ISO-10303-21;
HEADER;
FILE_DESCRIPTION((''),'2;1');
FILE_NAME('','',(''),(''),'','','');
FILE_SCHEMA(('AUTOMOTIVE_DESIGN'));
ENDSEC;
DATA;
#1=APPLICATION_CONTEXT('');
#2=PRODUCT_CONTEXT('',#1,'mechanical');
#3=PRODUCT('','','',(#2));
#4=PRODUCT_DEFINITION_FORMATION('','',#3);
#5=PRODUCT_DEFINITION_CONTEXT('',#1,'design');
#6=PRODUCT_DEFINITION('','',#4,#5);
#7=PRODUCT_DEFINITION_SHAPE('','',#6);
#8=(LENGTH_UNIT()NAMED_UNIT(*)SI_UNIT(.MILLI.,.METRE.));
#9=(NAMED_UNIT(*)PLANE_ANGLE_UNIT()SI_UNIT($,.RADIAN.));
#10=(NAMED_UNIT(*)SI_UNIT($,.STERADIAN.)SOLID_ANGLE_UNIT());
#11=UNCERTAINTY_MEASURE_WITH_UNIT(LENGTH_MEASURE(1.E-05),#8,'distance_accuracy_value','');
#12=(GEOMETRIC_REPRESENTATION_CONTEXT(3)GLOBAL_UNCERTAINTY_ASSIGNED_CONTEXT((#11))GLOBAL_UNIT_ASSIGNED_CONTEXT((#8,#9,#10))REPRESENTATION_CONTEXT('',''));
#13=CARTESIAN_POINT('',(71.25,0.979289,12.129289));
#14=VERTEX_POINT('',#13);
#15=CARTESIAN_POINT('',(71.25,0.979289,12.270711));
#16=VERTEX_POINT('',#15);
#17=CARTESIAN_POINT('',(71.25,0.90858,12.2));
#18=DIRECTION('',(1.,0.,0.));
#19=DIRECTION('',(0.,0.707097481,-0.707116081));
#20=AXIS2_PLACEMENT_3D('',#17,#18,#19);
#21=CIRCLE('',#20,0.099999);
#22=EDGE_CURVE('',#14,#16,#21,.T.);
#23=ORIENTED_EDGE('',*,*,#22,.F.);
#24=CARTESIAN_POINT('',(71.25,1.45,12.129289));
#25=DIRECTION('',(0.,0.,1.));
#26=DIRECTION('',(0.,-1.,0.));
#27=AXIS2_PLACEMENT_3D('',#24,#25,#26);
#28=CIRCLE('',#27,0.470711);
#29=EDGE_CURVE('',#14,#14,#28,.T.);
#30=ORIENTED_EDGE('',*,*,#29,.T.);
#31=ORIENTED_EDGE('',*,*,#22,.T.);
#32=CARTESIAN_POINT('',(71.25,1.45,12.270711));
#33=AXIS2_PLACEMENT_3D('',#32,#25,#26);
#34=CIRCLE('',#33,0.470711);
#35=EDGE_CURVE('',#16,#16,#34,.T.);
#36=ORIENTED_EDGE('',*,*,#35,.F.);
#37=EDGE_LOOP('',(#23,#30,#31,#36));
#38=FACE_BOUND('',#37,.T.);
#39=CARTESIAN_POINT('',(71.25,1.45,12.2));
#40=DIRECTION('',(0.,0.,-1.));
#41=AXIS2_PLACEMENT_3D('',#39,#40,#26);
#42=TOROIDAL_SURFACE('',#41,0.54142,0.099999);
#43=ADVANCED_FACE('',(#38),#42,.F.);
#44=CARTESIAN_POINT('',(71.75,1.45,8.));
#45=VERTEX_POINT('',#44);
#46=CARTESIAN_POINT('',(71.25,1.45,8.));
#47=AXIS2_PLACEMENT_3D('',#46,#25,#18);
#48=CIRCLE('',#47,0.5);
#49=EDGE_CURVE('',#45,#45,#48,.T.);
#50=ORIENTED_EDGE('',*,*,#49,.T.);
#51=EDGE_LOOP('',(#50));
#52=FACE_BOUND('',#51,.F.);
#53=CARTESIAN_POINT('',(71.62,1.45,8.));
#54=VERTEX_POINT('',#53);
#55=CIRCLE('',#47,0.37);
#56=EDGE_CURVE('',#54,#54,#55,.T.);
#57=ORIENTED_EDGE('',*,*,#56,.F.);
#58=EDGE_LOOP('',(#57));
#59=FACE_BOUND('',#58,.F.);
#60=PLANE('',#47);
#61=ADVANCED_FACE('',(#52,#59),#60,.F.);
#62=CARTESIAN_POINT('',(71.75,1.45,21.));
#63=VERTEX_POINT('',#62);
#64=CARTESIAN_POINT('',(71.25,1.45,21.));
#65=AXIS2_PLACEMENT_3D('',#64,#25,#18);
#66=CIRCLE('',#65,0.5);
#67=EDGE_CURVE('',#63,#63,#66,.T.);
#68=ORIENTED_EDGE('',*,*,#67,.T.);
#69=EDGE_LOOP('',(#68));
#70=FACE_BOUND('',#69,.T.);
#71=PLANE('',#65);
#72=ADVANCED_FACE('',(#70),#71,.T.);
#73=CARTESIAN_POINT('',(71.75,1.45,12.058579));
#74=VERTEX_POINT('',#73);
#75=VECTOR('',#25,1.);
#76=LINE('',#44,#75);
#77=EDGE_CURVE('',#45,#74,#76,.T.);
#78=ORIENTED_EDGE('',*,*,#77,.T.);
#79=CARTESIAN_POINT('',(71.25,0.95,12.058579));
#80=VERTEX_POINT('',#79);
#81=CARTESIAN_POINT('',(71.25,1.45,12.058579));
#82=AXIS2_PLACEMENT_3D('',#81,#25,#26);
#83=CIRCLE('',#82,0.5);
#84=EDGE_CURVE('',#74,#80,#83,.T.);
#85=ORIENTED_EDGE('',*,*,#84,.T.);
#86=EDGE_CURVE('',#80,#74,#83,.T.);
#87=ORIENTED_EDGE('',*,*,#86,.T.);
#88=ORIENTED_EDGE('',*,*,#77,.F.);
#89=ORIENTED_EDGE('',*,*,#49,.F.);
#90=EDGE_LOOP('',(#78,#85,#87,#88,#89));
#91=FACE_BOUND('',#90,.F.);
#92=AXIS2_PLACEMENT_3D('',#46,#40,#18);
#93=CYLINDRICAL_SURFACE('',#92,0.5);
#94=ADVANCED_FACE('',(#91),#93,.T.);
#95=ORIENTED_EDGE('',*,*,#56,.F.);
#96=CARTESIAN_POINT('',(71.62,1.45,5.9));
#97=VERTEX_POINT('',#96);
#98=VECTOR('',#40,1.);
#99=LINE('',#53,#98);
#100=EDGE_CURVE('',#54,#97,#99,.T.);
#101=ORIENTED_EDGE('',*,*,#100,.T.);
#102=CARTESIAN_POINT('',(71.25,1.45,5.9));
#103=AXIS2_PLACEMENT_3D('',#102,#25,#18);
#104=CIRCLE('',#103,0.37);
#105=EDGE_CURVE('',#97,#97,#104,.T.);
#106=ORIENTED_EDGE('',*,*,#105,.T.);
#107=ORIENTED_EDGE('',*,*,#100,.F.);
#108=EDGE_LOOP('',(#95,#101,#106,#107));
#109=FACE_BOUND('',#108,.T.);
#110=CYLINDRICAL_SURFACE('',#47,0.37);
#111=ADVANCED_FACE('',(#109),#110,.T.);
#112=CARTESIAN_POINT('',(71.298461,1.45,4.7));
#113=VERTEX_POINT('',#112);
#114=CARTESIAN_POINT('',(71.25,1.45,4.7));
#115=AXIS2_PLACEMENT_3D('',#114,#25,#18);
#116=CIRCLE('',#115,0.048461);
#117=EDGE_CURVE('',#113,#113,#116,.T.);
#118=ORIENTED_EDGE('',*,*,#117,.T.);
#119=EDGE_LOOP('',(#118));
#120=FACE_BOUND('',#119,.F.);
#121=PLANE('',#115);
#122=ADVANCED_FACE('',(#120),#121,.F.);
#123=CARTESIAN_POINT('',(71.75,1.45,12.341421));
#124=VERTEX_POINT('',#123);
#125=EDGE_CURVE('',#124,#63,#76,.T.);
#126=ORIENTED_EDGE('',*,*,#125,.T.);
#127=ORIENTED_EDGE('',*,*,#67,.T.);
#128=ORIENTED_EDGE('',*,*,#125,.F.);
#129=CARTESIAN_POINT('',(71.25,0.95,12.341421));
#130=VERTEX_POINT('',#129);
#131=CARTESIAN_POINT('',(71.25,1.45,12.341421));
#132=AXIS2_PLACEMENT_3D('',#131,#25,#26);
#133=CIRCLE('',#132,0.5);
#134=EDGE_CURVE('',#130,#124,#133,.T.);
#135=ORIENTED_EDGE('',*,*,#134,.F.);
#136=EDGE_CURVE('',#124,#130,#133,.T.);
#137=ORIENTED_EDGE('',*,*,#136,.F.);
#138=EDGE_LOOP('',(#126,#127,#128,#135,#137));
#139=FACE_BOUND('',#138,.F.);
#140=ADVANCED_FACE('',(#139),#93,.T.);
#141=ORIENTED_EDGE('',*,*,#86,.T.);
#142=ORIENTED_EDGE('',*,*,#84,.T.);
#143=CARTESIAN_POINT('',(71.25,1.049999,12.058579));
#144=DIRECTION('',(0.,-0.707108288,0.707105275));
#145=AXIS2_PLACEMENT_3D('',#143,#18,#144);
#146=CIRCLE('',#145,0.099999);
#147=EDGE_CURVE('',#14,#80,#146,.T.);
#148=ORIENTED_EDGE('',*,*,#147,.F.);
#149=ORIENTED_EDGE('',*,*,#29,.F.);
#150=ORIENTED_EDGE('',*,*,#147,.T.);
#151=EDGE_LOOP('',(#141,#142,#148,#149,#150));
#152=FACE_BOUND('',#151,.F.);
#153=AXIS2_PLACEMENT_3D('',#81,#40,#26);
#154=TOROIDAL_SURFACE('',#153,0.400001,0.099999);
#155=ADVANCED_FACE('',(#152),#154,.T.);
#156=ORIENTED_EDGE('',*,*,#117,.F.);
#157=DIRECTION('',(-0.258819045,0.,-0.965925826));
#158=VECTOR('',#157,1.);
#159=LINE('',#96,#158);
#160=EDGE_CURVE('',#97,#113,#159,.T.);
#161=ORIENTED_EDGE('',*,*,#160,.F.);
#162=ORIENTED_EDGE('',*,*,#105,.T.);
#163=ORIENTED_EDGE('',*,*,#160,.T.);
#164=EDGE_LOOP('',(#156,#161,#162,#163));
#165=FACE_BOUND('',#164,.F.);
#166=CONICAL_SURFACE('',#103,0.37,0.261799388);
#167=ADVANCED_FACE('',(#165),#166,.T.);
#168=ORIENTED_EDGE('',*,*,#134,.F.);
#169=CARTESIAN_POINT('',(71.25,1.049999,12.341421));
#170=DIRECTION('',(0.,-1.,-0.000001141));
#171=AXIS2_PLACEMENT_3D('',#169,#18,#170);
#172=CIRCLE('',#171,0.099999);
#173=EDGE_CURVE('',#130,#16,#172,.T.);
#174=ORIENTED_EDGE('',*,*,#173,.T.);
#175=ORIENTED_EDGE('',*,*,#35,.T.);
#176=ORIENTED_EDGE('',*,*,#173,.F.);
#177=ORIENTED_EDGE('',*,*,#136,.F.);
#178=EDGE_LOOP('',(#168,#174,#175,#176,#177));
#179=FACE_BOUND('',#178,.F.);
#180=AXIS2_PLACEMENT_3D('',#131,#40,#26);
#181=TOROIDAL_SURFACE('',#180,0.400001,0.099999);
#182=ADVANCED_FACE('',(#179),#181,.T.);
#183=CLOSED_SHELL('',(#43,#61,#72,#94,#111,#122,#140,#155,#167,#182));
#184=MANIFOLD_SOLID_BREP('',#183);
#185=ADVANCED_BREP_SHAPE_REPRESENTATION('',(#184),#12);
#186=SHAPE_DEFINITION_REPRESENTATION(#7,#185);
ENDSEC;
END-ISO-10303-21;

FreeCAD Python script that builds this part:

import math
import FreeCAD as App
import Part
import Sketcher
from FreeCAD import Vector
Q = App.Units.Quantity


def edges_at(feature, points):
    """Names of the edges that pass closest to the given points."""
    edges = feature.Shape.Edges
    near = lambda p: min(range(len(edges)), key=lambda i: edges[i].distToShape(Part.Vertex(*p))[0])
    return sorted({f"Edge{near(p) + 1}" for p in points})

doc = App.newDocument("Part")
body = doc.addObject("PartDesign::Body", "Body")

# Sketch on XY plane
sketch1 = body.newObject("Sketcher::SketchObject", "Sketch")
sketch1.AttachmentSupport = (doc.getObject("XY_Plane"), [""])
sketch1.MapMode = "FlatFace"
sketch1.addGeometry(Part.Circle(Vector(0, 0, 0), Vector(0, 0, 1), 0.5), False)
sketch1.addConstraint([
    Sketcher.Constraint("Coincident", 0, 3, -1, 1),
    Sketcher.Constraint("Diameter", 0, Q("1 mm")),
])
pad1 = body.newObject("PartDesign::Pad", "Pad")
pad1.Profile = sketch1
pad1.Length = 13

# Sketch on YZ plane
sketch2 = body.newObject("Sketcher::SketchObject", "Sketch001")
sketch2.AttachmentSupport = (doc.getObject("YZ_Plane"), [""])
sketch2.MapMode = "FlatFace"
sketch2.addGeometry([
    Part.ArcOfCircle(Part.Circle(Vector(-0.4, 4.34, 0), Vector(0, 0, 1), 0.1), math.radians(-180), math.radians(-135)),
    Part.LineSegment(Vector(-0.5, 4.34, 0), Vector(-0.5, 4.06, 0)),
    Part.ArcOfCircle(Part.Circle(Vector(-0.4, 4.06, 0), Vector(0, 0, 1), 0.1), math.radians(135), math.radians(180)),
    Part.ArcOfCircle(Part.Circle(Vector(-0.54, 4.2, 0), Vector(0, 0, 1), 0.1), math.radians(-45), math.radians(45)),
], False)
sketch2.addConstraint([
    Sketcher.Constraint("Tangent", 0, 1, 1, 1),
    Sketcher.Constraint("Tangent", 1, 2, 2, 2),
    Sketcher.Constraint("Coincident", 2, 1, 3, 1),
    Sketcher.Constraint("Coincident", 3, 2, 0, 2),
    Sketcher.Constraint("Vertical", 1),
    Sketcher.Constraint("Equal", 0, 2),
    Sketcher.Constraint("Equal", 2, 3),
    Sketcher.Constraint("Vertical", 2, 1, 3, 2),
    Sketcher.Constraint("Radius", 0, Q("0.099999 mm")),
    Sketcher.Constraint("DistanceX", 0, 3, -1, 1, Q("0.400001 mm")),
    Sketcher.Constraint("DistanceY", -1, 1, 3, 3, Q("4.2 mm")),
    Sketcher.Constraint("DistanceY", 1, 2, 1, 1, Q("0.282842 mm")),
    Sketcher.Constraint("DistanceX", 2, 1, -1, 1, Q("0.470711 mm")),
])
groove = body.newObject("PartDesign::Groove", "Groove")
groove.Profile = sketch2
groove.ReferenceAxis = (sketch2, ["V_Axis"])
groove.Angle = 360

# Sketch on XY plane
sketch3 = body.newObject("Sketcher::SketchObject", "Sketch002")
sketch3.AttachmentSupport = (doc.getObject("XY_Plane"), [""])
sketch3.MapMode = "FlatFace"
sketch3.addGeometry(Part.Circle(Vector(0, 0, 0), Vector(0, 0, 1), 0.37), False)
sketch3.addConstraint([
    Sketcher.Constraint("Coincident", 0, 3, -1, 1),
    Sketcher.Constraint("Diameter", 0, Q("0.74 mm")),
])
pad2 = body.newObject("PartDesign::Pad", "Pad001")
pad2.Profile = sketch3
pad2.Length = 3.3
pad2.Reversed = True
doc.recompute()

chamfer = body.newObject("PartDesign::Chamfer", "Chamfer")
chamfer.Base = (pad2, edges_at(pad2, [(-0.37, 0, -3.3)]))
chamfer.ChamferType = "Distance and Angle"
chamfer.Size = 1.2
chamfer.Angle = 15
body2 = doc.addObject("PartDesign::Body", "Body001")
doc.recompute()

body.Placement = App.Placement(Vector(72, -1, 8), App.Rotation(Vector(0, 0, 1), 0))
boolean = body2.newObject("PartDesign::Boolean", "Boolean")
boolean.Type = "Fuse"
boolean.addObjects([body])
body3 = doc.addObject("PartDesign::Body", "Body002")
doc.recompute()

body2.Placement = App.Placement(Vector(-72, 1, -8), App.Rotation(Vector(0, 0, 1), 0))
boolean2 = body3.newObject("PartDesign::Boolean", "Boolean001")
boolean2.Type = "Fuse"
boolean2.addObjects([body2])
body4 = doc.addObject("PartDesign::Body", "Body003")
doc.recompute()

body3.Placement = App.Placement(Vector(71.25, 1.45, 8), App.Rotation(Vector(0, 0, 1), 0))
boolean3 = body4.newObject("PartDesign::Boolean", "Boolean002")
boolean3.Type = "Fuse"
boolean3.addObjects([body3])

doc.recompute()
